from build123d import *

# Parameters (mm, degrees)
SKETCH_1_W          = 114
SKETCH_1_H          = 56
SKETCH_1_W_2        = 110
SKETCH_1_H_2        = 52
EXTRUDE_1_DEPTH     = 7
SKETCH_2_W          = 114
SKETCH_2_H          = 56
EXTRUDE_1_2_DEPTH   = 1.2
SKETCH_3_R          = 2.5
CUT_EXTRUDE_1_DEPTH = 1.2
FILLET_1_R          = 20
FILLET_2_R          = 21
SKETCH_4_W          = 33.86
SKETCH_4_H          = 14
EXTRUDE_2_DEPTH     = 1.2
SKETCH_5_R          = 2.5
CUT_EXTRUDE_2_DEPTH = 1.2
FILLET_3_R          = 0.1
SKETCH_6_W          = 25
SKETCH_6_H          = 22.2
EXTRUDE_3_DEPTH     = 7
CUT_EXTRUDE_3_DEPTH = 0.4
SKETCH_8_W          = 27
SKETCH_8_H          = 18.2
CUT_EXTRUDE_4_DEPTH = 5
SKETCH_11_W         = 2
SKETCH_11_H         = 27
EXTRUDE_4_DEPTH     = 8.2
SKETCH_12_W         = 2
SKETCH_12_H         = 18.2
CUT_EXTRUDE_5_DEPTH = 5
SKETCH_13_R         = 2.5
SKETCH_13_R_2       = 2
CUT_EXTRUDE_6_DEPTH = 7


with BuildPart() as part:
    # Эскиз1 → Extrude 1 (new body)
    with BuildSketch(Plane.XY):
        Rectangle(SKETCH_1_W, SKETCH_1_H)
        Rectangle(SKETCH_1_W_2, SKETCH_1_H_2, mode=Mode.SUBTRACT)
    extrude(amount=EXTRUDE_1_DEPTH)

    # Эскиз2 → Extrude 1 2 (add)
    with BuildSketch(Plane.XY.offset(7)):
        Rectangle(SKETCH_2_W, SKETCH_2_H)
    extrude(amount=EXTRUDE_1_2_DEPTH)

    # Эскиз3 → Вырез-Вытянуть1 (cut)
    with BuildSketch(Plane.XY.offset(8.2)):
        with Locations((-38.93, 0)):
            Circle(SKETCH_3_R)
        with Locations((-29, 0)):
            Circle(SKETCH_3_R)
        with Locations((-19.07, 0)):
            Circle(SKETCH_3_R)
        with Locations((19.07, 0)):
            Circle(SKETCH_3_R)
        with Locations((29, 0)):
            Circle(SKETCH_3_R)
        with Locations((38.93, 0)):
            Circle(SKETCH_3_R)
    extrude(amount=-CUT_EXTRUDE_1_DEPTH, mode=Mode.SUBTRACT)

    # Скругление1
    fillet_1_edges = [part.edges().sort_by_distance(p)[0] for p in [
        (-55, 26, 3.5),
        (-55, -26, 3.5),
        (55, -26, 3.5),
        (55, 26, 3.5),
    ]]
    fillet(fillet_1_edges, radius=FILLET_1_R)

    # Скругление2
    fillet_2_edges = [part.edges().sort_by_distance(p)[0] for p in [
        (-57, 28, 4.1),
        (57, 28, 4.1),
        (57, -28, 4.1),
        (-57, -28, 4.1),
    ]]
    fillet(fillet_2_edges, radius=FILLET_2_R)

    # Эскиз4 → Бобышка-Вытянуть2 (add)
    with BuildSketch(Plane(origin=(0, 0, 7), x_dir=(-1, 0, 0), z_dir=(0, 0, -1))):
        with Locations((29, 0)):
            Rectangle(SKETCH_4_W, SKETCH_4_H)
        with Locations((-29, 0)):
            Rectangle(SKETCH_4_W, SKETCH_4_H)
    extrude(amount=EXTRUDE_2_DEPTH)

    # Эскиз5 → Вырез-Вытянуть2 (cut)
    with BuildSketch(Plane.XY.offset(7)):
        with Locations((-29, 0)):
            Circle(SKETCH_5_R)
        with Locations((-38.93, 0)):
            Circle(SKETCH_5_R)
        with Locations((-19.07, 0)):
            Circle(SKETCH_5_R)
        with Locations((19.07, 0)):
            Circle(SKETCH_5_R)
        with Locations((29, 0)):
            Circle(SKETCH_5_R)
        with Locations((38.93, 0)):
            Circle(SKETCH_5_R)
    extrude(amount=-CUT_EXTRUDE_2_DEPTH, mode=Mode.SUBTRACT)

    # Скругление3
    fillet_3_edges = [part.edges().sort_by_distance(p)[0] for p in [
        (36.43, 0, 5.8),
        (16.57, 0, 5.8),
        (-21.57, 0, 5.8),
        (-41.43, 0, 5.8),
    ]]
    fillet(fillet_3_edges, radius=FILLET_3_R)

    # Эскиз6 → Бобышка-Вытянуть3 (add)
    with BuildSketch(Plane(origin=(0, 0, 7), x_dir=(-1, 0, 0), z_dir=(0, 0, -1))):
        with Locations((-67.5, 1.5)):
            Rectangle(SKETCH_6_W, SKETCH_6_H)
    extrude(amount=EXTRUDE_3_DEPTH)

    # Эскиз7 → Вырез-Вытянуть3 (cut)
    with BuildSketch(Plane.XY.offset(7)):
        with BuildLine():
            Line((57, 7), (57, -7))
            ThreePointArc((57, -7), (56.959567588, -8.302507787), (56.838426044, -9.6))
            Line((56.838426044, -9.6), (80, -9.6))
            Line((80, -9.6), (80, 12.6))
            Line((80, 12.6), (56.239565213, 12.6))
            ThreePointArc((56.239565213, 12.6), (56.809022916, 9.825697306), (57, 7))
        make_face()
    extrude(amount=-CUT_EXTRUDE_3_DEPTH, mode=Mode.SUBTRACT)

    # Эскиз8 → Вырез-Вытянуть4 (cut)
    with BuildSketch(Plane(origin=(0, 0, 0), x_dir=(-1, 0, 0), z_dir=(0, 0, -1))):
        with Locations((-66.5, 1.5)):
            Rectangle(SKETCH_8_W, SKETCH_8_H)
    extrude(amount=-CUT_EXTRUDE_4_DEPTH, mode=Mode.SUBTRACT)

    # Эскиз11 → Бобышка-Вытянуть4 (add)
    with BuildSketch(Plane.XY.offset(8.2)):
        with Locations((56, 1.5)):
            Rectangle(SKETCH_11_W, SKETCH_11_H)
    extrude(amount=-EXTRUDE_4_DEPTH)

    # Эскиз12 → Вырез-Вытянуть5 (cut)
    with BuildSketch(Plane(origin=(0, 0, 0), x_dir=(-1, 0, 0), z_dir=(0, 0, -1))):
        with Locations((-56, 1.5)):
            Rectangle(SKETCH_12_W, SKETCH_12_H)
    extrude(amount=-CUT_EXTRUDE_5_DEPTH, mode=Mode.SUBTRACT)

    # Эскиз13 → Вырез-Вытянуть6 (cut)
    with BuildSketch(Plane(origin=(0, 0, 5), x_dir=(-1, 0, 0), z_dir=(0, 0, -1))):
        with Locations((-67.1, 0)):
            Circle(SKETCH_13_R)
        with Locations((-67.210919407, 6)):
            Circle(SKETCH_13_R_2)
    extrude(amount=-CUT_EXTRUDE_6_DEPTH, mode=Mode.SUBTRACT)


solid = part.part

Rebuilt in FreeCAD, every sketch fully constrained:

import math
import FreeCAD as App
import Part
import Sketcher
from FreeCAD import Vector


def edges_at(feature, points):
    """Names of the edges that pass closest to the given points."""
    edges = feature.Shape.Edges
    near = lambda p: min(range(len(edges)), key=lambda i: edges[i].distToShape(Part.Vertex(*p))[0])
    return sorted({f"Edge{near(p) + 1}" for p in points})

doc = App.newDocument("Part")
body = doc.addObject("PartDesign::Body", "Body")

# Sketch on XY plane
sketch1 = body.newObject("Sketcher::SketchObject", "Sketch")
sketch1.AttachmentSupport = (doc.getObject("XY_Plane"), [""])
sketch1.MapMode = "FlatFace"
sketch1.addGeometry([
    Part.LineSegment(Vector(-57, 28, 0), Vector(-57, -28, 0)),  # 0
    Part.LineSegment(Vector(-57, -28, 0), Vector(57, -28, 0)),  # 1
    Part.LineSegment(Vector(57, -28, 0), Vector(57, 28, 0)),  # 2
    Part.LineSegment(Vector(57, 28, 0), Vector(-57, 28, 0)),  # 3
    Part.LineSegment(Vector(55, -26, 0), Vector(-55, -26, 0)),  # 4
    Part.LineSegment(Vector(-55, -26, 0), Vector(-55, 26, 0)),  # 5
    Part.LineSegment(Vector(-55, 26, 0), Vector(55, 26, 0)),  # 6
    Part.LineSegment(Vector(55, 26, 0), Vector(55, -26, 0)),  # 7
], False)
sketch1.addConstraint([
    Sketcher.Constraint("Coincident", 0, 2, 1, 1),
    Sketcher.Constraint("Coincident", 1, 2, 2, 1),
    Sketcher.Constraint("Coincident", 2, 2, 3, 1),
    Sketcher.Constraint("Coincident", 3, 2, 0, 1),
    Sketcher.Constraint("Coincident", 4, 2, 5, 1),
    Sketcher.Constraint("Coincident", 5, 2, 6, 1),
    Sketcher.Constraint("Coincident", 6, 2, 7, 1),
    Sketcher.Constraint("Coincident", 7, 2, 4, 1),
    Sketcher.Constraint("Vertical", 0),
    Sketcher.Constraint("Horizontal", 1),
    Sketcher.Constraint("Vertical", 2),
    Sketcher.Constraint("Horizontal", 3),
    Sketcher.Constraint("Horizontal", 4),
    Sketcher.Constraint("Vertical", 5),
    Sketcher.Constraint("Horizontal", 6),
    Sketcher.Constraint("Vertical", 7),
    Sketcher.Constraint("Symmetric", 0, 2, 2, 2, -1, 1),
    Sketcher.Constraint("Symmetric", 4, 2, 6, 2, -1, 1),
    Sketcher.Constraint("DistanceX", 1, 1, 1, 2, 114.0),
    Sketcher.Constraint("DistanceX", 4, 2, 4, 1, 110.0),
    Sketcher.Constraint("DistanceY", 0, 2, 0, 1, 56.0),
    Sketcher.Constraint("DistanceY", 5, 1, 5, 2, 52.0),
])
pad1 = body.newObject("PartDesign::Pad", "Pad")
pad1.Profile = sketch1
pad1.Length = 7

# Sketch on XY plane
sketch2 = body.newObject("Sketcher::SketchObject", "Sketch001")
sketch2.AttachmentSupport = (doc.getObject("XY_Plane"), [""])
sketch2.MapMode = "FlatFace"
sketch2.AttachmentOffset = App.Placement(Vector(0, 0, 7), App.Rotation())
sketch2.addGeometry([
    Part.LineSegment(Vector(-57, 28, 0), Vector(-57, -28, 0)),
    Part.LineSegment(Vector(-57, -28, 0), Vector(57, -28, 0)),
    Part.LineSegment(Vector(57, -28, 0), Vector(57, 28, 0)),
    Part.LineSegment(Vector(57, 28, 0), Vector(-57, 28, 0)),
], False)
sketch2.addConstraint([
    Sketcher.Constraint("Coincident", 0, 2, 1, 1),
    Sketcher.Constraint("Coincident", 1, 2, 2, 1),
    Sketcher.Constraint("Coincident", 2, 2, 3, 1),
    Sketcher.Constraint("Coincident", 3, 2, 0, 1),
    Sketcher.Constraint("Vertical", 0),
    Sketcher.Constraint("Horizontal", 1),
    Sketcher.Constraint("Vertical", 2),
    Sketcher.Constraint("Horizontal", 3),
    Sketcher.Constraint("Symmetric", 0, 2, 2, 2, -1, 1),
    Sketcher.Constraint("DistanceX", 1, 1, 1, 2, 114.0),
    Sketcher.Constraint("DistanceY", 0, 2, 0, 1, 56.0),
])
pad2 = body.newObject("PartDesign::Pad", "Pad001")
pad2.Profile = sketch2
pad2.Length = 1.2

# Sketch on XY plane
sketch3 = body.newObject("Sketcher::SketchObject", "Sketch002")
sketch3.AttachmentSupport = (doc.getObject("XY_Plane"), [""])
sketch3.MapMode = "FlatFace"
sketch3.AttachmentOffset = App.Placement(Vector(0, 0, 8.2), App.Rotation())
sketch3.addGeometry([
    Part.Circle(Vector(-38.9, 0, 0), Vector(0, 0, 1), 2.5),  # 0
    Part.Circle(Vector(-29, 0, 0), Vector(0, 0, 1), 2.5),  # 1
    Part.Circle(Vector(-19.1, 0, 0), Vector(0, 0, 1), 2.5),  # 2
    Part.Circle(Vector(19.1, 0, 0), Vector(0, 0, 1), 2.5),  # 3
    Part.Circle(Vector(29, 0, 0), Vector(0, 0, 1), 2.5),  # 4
    Part.Circle(Vector(38.9, 0, 0), Vector(0, 0, 1), 2.5),  # 5
], False)
sketch3.addConstraint([
    Sketcher.Constraint("Equal", 0, 1),
    Sketcher.Constraint("Equal", 1, 2),
    Sketcher.Constraint("Equal", 2, 3),
    Sketcher.Constraint("Equal", 3, 4),
    Sketcher.Constraint("Equal", 4, 5),
    Sketcher.Constraint("Symmetric", 2, 3, 3, 3, -1, 1),
    Sketcher.Constraint("Symmetric", 1, 3, 4, 3, -1, 1),
    Sketcher.Constraint("Symmetric", 0, 3, 5, 3, -1, 1),
    Sketcher.Constraint("PointOnObject", 0, 3, -1),
    Sketcher.Constraint("PointOnObject", 1, 3, -1),
    Sketcher.Constraint("PointOnObject", 2, 3, -1),
    Sketcher.Constraint("Diameter", 0, 5.0),
    Sketcher.Constraint("DistanceX", 1, 3, -1, 1, 29.0),
    Sketcher.Constraint("DistanceX", 0, 3, 3, 3, 58.0),
    Sketcher.Constraint("DistanceX", 0, 3, -1, 1, 38.93),
])
pocket1 = body.newObject("PartDesign::Pocket", "Pocket")
pocket1.Profile = sketch3
pocket1.Length = 1.2
doc.recompute()

fillet = body.newObject("PartDesign::Fillet", "Fillet")
fillet.Base = (pocket1, edges_at(pocket1, [
    (-55, 26, 3.5),
    (-55, -26, 3.5),
    (55, -26, 3.5),
    (55, 26, 3.5),
]))
fillet.Radius = 20
doc.recompute()

fillet2 = body.newObject("PartDesign::Fillet", "Fillet001")
fillet2.Base = (fillet, edges_at(fillet, [
    (-57, 28, 4.1),
    (57, 28, 4.1),
    (57, -28, 4.1),
    (-57, -28, 4.1),
]))
fillet2.Radius = 21

# Sketch on XY plane
sketch4 = body.newObject("Sketcher::SketchObject", "Sketch003")
sketch4.AttachmentSupport = (doc.getObject("XY_Plane"), [""])
sketch4.MapMode = "FlatFace"
sketch4.AttachmentOffset = App.Placement(Vector(0, 0, 7), App.Rotation())
sketch4.addGeometry([
    Part.LineSegment(Vector(-12, 7, 0), Vector(-12, -7, 0)),  # 0
    Part.LineSegment(Vector(-12, -7, 0), Vector(-46, -7, 0)),  # 1
    Part.LineSegment(Vector(-46, -7, 0), Vector(-46, 7, 0)),  # 2
    Part.LineSegment(Vector(-46, 7, 0), Vector(-12, 7, 0)),  # 3
    Part.LineSegment(Vector(46, 7, 0), Vector(46, -7, 0)),  # 4
    Part.LineSegment(Vector(46, -7, 0), Vector(12, -7, 0)),  # 5
    Part.LineSegment(Vector(12, -7, 0), Vector(12, 7, 0)),  # 6
    Part.LineSegment(Vector(12, 7, 0), Vector(46, 7, 0)),  # 7
], False)
sketch4.addConstraint([
    Sketcher.Constraint("Coincident", 0, 2, 1, 1),
    Sketcher.Constraint("Coincident", 1, 2, 2, 1),
    Sketcher.Constraint("Coincident", 2, 2, 3, 1),
    Sketcher.Constraint("Coincident", 3, 2, 0, 1),
    Sketcher.Constraint("Coincident", 4, 2, 5, 1),
    Sketcher.Constraint("Coincident", 5, 2, 6, 1),
    Sketcher.Constraint("Coincident", 6, 2, 7, 1),
    Sketcher.Constraint("Coincident", 7, 2, 4, 1),
    Sketcher.Constraint("Vertical", 0),
    Sketcher.Constraint("Horizontal", 1),
    Sketcher.Constraint("Vertical", 2),
    Sketcher.Constraint("Horizontal", 3),
    Sketcher.Constraint("Vertical", 4),
    Sketcher.Constraint("Horizontal", 5),
    Sketcher.Constraint("Vertical", 6),
    Sketcher.Constraint("Horizontal", 7),
    Sketcher.Constraint("Symmetric", 2, 2, 4, 2, -1, 1),
    Sketcher.Constraint("Symmetric", 0, 2, 6, 2, -1, 1),
    Sketcher.Constraint("Horizontal", 1, 2, 4, 2),
    Sketcher.Constraint("DistanceY", 0, 2, 0, 1, 14.0),
    Sketcher.Constraint("DistanceX", 0, 2, 4, 2, 58.0),
    Sketcher.Constraint("DistanceX", 1, 2, 1, 1, 33.86),
])
pad3 = body.newObject("PartDesign::Pad", "Pad002")
pad3.Profile = sketch4
pad3.Length = 1.2
pad3.Reversed = True

# Sketch on XY plane
sketch5 = body.newObject("Sketcher::SketchObject", "Sketch004")
sketch5.AttachmentSupport = (doc.getObject("XY_Plane"), [""])
sketch5.MapMode = "FlatFace"
sketch5.AttachmentOffset = App.Placement(Vector(0, 0, 7), App.Rotation())
sketch5.addGeometry([
    Part.Circle(Vector(-29, 0, 0), Vector(0, 0, 1), 2.5),  # 0
    Part.Circle(Vector(-38.9, 0, 0), Vector(0, 0, 1), 2.5),  # 1
    Part.Circle(Vector(-19.1, 0, 0), Vector(0, 0, 1), 2.5),  # 2
    Part.Circle(Vector(19.1, 0, 0), Vector(0, 0, 1), 2.5),  # 3
    Part.Circle(Vector(29, 0, 0), Vector(0, 0, 1), 2.5),  # 4
    Part.Circle(Vector(38.9, 0, 0), Vector(0, 0, 1), 2.5),  # 5
], False)
sketch5.addConstraint([
    Sketcher.Constraint("Equal", 0, 1),
    Sketcher.Constraint("Equal", 1, 2),
    Sketcher.Constraint("Equal", 2, 3),
    Sketcher.Constraint("Equal", 3, 4),
    Sketcher.Constraint("Equal", 4, 5),
    Sketcher.Constraint("Symmetric", 2, 3, 3, 3, -1, 1),
    Sketcher.Constraint("Symmetric", 0, 3, 4, 3, -1, 1),
    Sketcher.Constraint("Symmetric", 1, 3, 5, 3, -1, 1),
    Sketcher.Constraint("PointOnObject", 0, 3, -1),
    Sketcher.Constraint("PointOnObject", 1, 3, -1),
    Sketcher.Constraint("PointOnObject", 2, 3, -1),
    Sketcher.Constraint("Diameter", 0, 5.0),
    Sketcher.Constraint("DistanceX", 0, 3, -1, 1, 29.0),
    Sketcher.Constraint("DistanceX", 1, 3, 3, 3, 58.0),
    Sketcher.Constraint("DistanceX", 1, 3, -1, 1, 38.93),
])
pocket2 = body.newObject("PartDesign::Pocket", "Pocket001")
pocket2.Profile = sketch5
pocket2.Length = 1.2
doc.recompute()

fillet3 = body.newObject("PartDesign::Fillet", "Fillet002")
fillet3.Base = (pocket2, edges_at(pocket2, [
    (36.43, 0, 5.8),
    (16.57, 0, 5.8),
    (-21.57, 0, 5.8),
    (-41.43, 0, 5.8),
]))
fillet3.Radius = 0.1

# Sketch on XY plane
sketch6 = body.newObject("Sketcher::SketchObject", "Sketch005")
sketch6.AttachmentSupport = (doc.getObject("XY_Plane"), [""])
sketch6.MapMode = "FlatFace"
sketch6.AttachmentOffset = App.Placement(Vector(0, 0, 7), App.Rotation())
sketch6.addGeometry([
    Part.LineSegment(Vector(80, 13, 0), Vector(80, -10, 0)),
    Part.LineSegment(Vector(80, -10, 0), Vector(55, -10, 0)),
    Part.LineSegment(Vector(55, -10, 0), Vector(55, 13, 0)),
    Part.LineSegment(Vector(55, 13, 0), Vector(80, 13, 0)),
], False)
sketch6.addConstraint([
    Sketcher.Constraint("Coincident", 0, 2, 1, 1),
    Sketcher.Constraint("Coincident", 1, 2, 2, 1),
    Sketcher.Constraint("Coincident", 2, 2, 3, 1),
    Sketcher.Constraint("Coincident", 3, 2, 0, 1),
    Sketcher.Constraint("Vertical", 0),
    Sketcher.Constraint("Horizontal", 1),
    Sketcher.Constraint("Vertical", 2),
    Sketcher.Constraint("Horizontal", 3),
    Sketcher.Constraint("DistanceX", 1, 2, 1, 1, 25.0),
    Sketcher.Constraint("DistanceY", 0, 2, 0, 1, 22.2),
    Sketcher.Constraint("DistanceX", -1, 1, 0, 2, 80.0),
    Sketcher.Constraint("DistanceY", 0, 2, -1, 1, 9.6),
])
pad4 = body.newObject("PartDesign::Pad", "Pad003")
pad4.Profile = sketch6
pad4.Length = 7
pad4.Reversed = True

# Sketch on XY plane
sketch7 = body.newObject("Sketcher::SketchObject", "Sketch006")
sketch7.AttachmentSupport = (doc.getObject("XY_Plane"), [""])
sketch7.MapMode = "FlatFace"
sketch7.AttachmentOffset = App.Placement(Vector(0, 0, 7), App.Rotation())
sketch7.addGeometry([
    Part.LineSegment(Vector(57, 7, 0), Vector(57, -7, 0)),  # 0
    Part.ArcOfCircle(Part.Circle(Vector(36, -7, 0), Vector(0, 0, 1), 21), math.radians(-7.11), math.radians(0)),  # 1
    Part.LineSegment(Vector(56.8, -9.6, 0), Vector(80, -9.6, 0)),  # 2
    Part.LineSegment(Vector(80, -9.6, 0), Vector(80, 12.6, 0)),  # 3
    Part.LineSegment(Vector(80, 12.6, 0), Vector(56.2, 12.6, 0)),  # 4
    Part.ArcOfCircle(Part.Circle(Vector(36, 7, 0), Vector(0, 0, 1), 21), math.radians(0), math.radians(15.47)),  # 5
], False)
sketch7.addConstraint([
    Sketcher.Constraint("Tangent", 0, 2, 1, 2),
    Sketcher.Constraint("Coincident", 1, 1, 2, 1),
    Sketcher.Constraint("Coincident", 2, 2, 3, 1),
    Sketcher.Constraint("Coincident", 3, 2, 4, 1),
    Sketcher.Constraint("Coincident", 4, 2, 5, 2),
    Sketcher.Constraint("Tangent", 5, 1, 0, 1),
    Sketcher.Constraint("Vertical", 0),
    Sketcher.Constraint("Horizontal", 2),
    Sketcher.Constraint("Vertical", 3),
    Sketcher.Constraint("Horizontal", 4),
    Sketcher.Constraint("Equal", 1, 5),
    Sketcher.Constraint("Radius", 1, 21.0),
    Sketcher.Constraint("DistanceY", 0, 2, 0, 1, 14.0),
    Sketcher.Constraint("DistanceY", 3, 1, 3, 2, 22.2),
    Sketcher.Constraint("DistanceX", -1, 1, 1, 3, 36.0),
    Sketcher.Constraint("DistanceY", 1, 3, -1, 1, 7.0),
    Sketcher.Constraint("DistanceX", -1, 1, 2, 2, 80.0),
    Sketcher.Constraint("DistanceY", 1, 1, -1, 1, 9.6),
])
pocket3 = body.newObject("PartDesign::Pocket", "Pocket002")
pocket3.Profile = sketch7
pocket3.Length = 0.4

# Sketch on XY plane
sketch8 = body.newObject("Sketcher::SketchObject", "Sketch007")
sketch8.AttachmentSupport = (doc.getObject("XY_Plane"), [""])
sketch8.MapMode = "FlatFace"
sketch8.addGeometry([
    Part.LineSegment(Vector(80, 11, 0), Vector(80, -8, 0)),
    Part.LineSegment(Vector(80, -8, 0), Vector(53, -8, 0)),
    Part.LineSegment(Vector(53, -8, 0), Vector(53, 11, 0)),
    Part.LineSegment(Vector(53, 11, 0), Vector(80, 11, 0)),
], False)
sketch8.addConstraint([
    Sketcher.Constraint("Coincident", 0, 2, 1, 1),
    Sketcher.Constraint("Coincident", 1, 2, 2, 1),
    Sketcher.Constraint("Coincident", 2, 2, 3, 1),
    Sketcher.Constraint("Coincident", 3, 2, 0, 1),
    Sketcher.Constraint("Vertical", 0),
    Sketcher.Constraint("Horizontal", 1),
    Sketcher.Constraint("Vertical", 2),
    Sketcher.Constraint("Horizontal", 3),
    Sketcher.Constraint("DistanceX", 1, 2, 1, 1, 27.0),
    Sketcher.Constraint("DistanceY", 0, 2, 0, 1, 18.2),
    Sketcher.Constraint("DistanceX", -1, 1, 0, 2, 80.0),
    Sketcher.Constraint("DistanceY", 0, 2, -1, 1, 7.6),
])
pocket4 = body.newObject("PartDesign::Pocket", "Pocket003")
pocket4.Profile = sketch8
pocket4.Length = 5
pocket4.Reversed = True

# Sketch on XY plane
sketch9 = body.newObject("Sketcher::SketchObject", "Sketch008")
sketch9.AttachmentSupport = (doc.getObject("XY_Plane"), [""])
sketch9.MapMode = "FlatFace"
sketch9.AttachmentOffset = App.Placement(Vector(0, 0, 8.2), App.Rotation())
sketch9.addGeometry([
    Part.LineSegment(Vector(55, 15, 0), Vector(55, -12, 0)),
    Part.LineSegment(Vector(55, -12, 0), Vector(57, -12, 0)),
    Part.LineSegment(Vector(57, -12, 0), Vector(57, 15, 0)),
    Part.LineSegment(Vector(57, 15, 0), Vector(55, 15, 0)),
], False)
sketch9.addConstraint([
    Sketcher.Constraint("Coincident", 0, 2, 1, 1),
    Sketcher.Constraint("Coincident", 1, 2, 2, 1),
    Sketcher.Constraint("Coincident", 2, 2, 3, 1),
    Sketcher.Constraint("Coincident", 3, 2, 0, 1),
    Sketcher.Constraint("Vertical", 0),
    Sketcher.Constraint("Horizontal", 1),
    Sketcher.Constraint("Vertical", 2),
    Sketcher.Constraint("Horizontal", 3),
    Sketcher.Constraint("DistanceX", 1, 1, 1, 2, 2.0),
    Sketcher.Constraint("DistanceY", 0, 2, 0, 1, 27.0),
    Sketcher.Constraint("DistanceX", -1, 1, 0, 2, 55.0),
    Sketcher.Constraint("DistanceY", 0, 2, -1, 1, 12.0),
])
pad5 = body.newObject("PartDesign::Pad", "Pad004")
pad5.Profile = sketch9
pad5.Length = 8.2
pad5.Reversed = True

# Sketch on XY plane
sketch10 = body.newObject("Sketcher::SketchObject", "Sketch009")
sketch10.AttachmentSupport = (doc.getObject("XY_Plane"), [""])
sketch10.MapMode = "FlatFace"
sketch10.addGeometry([
    Part.LineSegment(Vector(57, 10.6, 0), Vector(57, -7.6, 0)),
    Part.LineSegment(Vector(57, -7.6, 0), Vector(55, -7.6, 0)),
    Part.LineSegment(Vector(55, -7.6, 0), Vector(55, 10.6, 0)),
    Part.LineSegment(Vector(55, 10.6, 0), Vector(57, 10.6, 0)),
], False)
sketch10.addConstraint([
    Sketcher.Constraint("Coincident", 0, 2, 1, 1),
    Sketcher.Constraint("Coincident", 1, 2, 2, 1),
    Sketcher.Constraint("Coincident", 2, 2, 3, 1),
    Sketcher.Constraint("Coincident", 3, 2, 0, 1),
    Sketcher.Constraint("Vertical", 0),
    Sketcher.Constraint("Horizontal", 1),
    Sketcher.Constraint("Vertical", 2),
    Sketcher.Constraint("Horizontal", 3),
    Sketcher.Constraint("DistanceX", 1, 2, 1, 1, 2.0),
    Sketcher.Constraint("DistanceY", 0, 2, 0, 1, 18.2),
    Sketcher.Constraint("DistanceX", -1, 1, 0, 2, 57.0),
    Sketcher.Constraint("DistanceY", 0, 2, -1, 1, 7.6),
])
pocket5 = body.newObject("PartDesign::Pocket", "Pocket004")
pocket5.Profile = sketch10
pocket5.Length = 5
pocket5.Reversed = True

# Sketch on XY plane
sketch11 = body.newObject("Sketcher::SketchObject", "Sketch010")
sketch11.AttachmentSupport = (doc.getObject("XY_Plane"), [""])
sketch11.MapMode = "FlatFace"
sketch11.AttachmentOffset = App.Placement(Vector(0, 0, 5), App.Rotation())
sketch11.addGeometry([
    Part.Circle(Vector(67.1, 0, 0), Vector(0, 0, 1), 2.5),
    Part.Circle(Vector(67.2, 6, 0), Vector(0, 0, 1), 2),
], False)
sketch11.addConstraint([
    Sketcher.Constraint("PointOnObject", 0, 3, -1),
    Sketcher.Constraint("Diameter", 0, 5.0),
    Sketcher.Constraint("Diameter", 1, 4.0),
    Sketcher.Constraint("DistanceY", -1, 1, 1, 3, 6.0),
    Sketcher.Constraint("DistanceX", -1, 1, 0, 3, 67.1),
    Sketcher.Constraint("DistanceX", -1, 1, 1, 3, 67.210919),
])
pocket6 = body.newObject("PartDesign::Pocket", "Pocket005")
pocket6.Profile = sketch11
pocket6.Length = 7
pocket6.Reversed = True

doc.recompute()
